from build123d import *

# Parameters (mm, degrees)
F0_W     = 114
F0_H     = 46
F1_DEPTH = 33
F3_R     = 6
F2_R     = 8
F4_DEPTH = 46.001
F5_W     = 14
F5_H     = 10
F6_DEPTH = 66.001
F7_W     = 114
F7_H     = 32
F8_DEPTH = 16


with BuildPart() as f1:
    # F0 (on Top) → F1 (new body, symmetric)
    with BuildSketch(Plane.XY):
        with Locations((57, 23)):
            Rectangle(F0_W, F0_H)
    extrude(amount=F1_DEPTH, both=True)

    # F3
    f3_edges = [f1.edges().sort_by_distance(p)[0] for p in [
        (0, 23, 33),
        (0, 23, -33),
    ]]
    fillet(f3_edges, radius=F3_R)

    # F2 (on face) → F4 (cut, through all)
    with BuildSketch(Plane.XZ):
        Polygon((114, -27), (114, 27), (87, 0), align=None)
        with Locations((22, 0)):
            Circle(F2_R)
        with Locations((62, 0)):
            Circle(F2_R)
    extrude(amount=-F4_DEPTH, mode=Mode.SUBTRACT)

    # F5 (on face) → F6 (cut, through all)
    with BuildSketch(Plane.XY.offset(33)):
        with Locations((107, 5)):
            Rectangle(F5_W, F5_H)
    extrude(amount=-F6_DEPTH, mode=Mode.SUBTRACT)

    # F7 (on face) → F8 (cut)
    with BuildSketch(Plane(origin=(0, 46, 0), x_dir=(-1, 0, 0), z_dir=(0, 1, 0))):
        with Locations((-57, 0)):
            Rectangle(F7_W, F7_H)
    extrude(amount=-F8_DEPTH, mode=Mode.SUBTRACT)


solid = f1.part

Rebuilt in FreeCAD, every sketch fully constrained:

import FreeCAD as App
import Part
import Sketcher
from FreeCAD import Vector
Q = App.Units.Quantity


def edges_at(feature, points):
    """Names of the edges that pass closest to the given points."""
    edges = feature.Shape.Edges
    near = lambda p: min(range(len(edges)), key=lambda i: edges[i].distToShape(Part.Vertex(*p))[0])
    return sorted({f"Edge{near(p) + 1}" for p in points})

doc = App.newDocument("Part")
body = doc.addObject("PartDesign::Body", "Body")

sketch1 = body.newObject("Sketcher::SketchObject", "Sketch")
sketch1.AttachmentSupport = (doc.getObject("XY_Plane"), [""])
sketch1.MapMode = "FlatFace"
sketch1.addGeometry(Part.LineSegment(Vector(0, 46, 0), Vector(0, 0, 0)), False)
sketch1.addGeometry(Part.LineSegment(Vector(0, 0, 0), Vector(114, 0, 0)), False)
sketch1.addGeometry(Part.LineSegment(Vector(114, 0, 0), Vector(114, 46, 0)), False)
sketch1.addGeometry(Part.LineSegment(Vector(114, 46, 0), Vector(0, 46, 0)), False)
sketch1.addConstraint(Sketcher.Constraint("Coincident", 0, 2, 1, 1))
sketch1.addConstraint(Sketcher.Constraint("Coincident", 1, 2, 2, 1))
sketch1.addConstraint(Sketcher.Constraint("Coincident", 2, 2, 3, 1))
sketch1.addConstraint(Sketcher.Constraint("Coincident", 3, 2, 0, 1))
sketch1.addConstraint(Sketcher.Constraint("Vertical", 0))
sketch1.addConstraint(Sketcher.Constraint("Horizontal", 1))
sketch1.addConstraint(Sketcher.Constraint("Vertical", 2))
sketch1.addConstraint(Sketcher.Constraint("Horizontal", 3))
sketch1.addConstraint(Sketcher.Constraint("Coincident", 0, 2, -1, 1))
sketch1.addConstraint(Sketcher.Constraint("DistanceX", 1, 1, 1, 2, Q("114 mm")))
sketch1.addConstraint(Sketcher.Constraint("DistanceY", 0, 2, 0, 1, Q("46 mm")))
pad1 = body.newObject("PartDesign::Pad", "Pad")
pad1.Profile = sketch1
pad1.Length = 66
pad1.Midplane = True
doc.recompute()

fillet = body.newObject("PartDesign::Fillet", "Fillet")
fillet.Base = (pad1, edges_at(pad1, [(0, 23, 33), (0, 23, -33)]))
fillet.Radius = 6

sketch2 = body.newObject("Sketcher::SketchObject", "Sketch001")
sketch2.AttachmentSupport = (doc.getObject("XZ_Plane"), [""])
sketch2.MapMode = "FlatFace"
sketch2.addGeometry(Part.LineSegment(Vector(114, -27, 0), Vector(114, 27, 0)), False)
sketch2.addGeometry(Part.LineSegment(Vector(114, 27, 0), Vector(87, 0, 0)), False)
sketch2.addGeometry(Part.LineSegment(Vector(87, 0, 0), Vector(114, -27, 0)), False)
sketch2.addGeometry(Part.Circle(Vector(22, 0, 0), Vector(0, 0, 1), 8), False)
sketch2.addGeometry(Part.Circle(Vector(62, 0, 0), Vector(0, 0, 1), 8), False)
sketch2.addConstraint(Sketcher.Constraint("Coincident", 0, 2, 1, 1))
sketch2.addConstraint(Sketcher.Constraint("Coincident", 1, 2, 2, 1))
sketch2.addConstraint(Sketcher.Constraint("Coincident", 2, 2, 0, 1))
sketch2.addConstraint(Sketcher.Constraint("Vertical", 0))
sketch2.addConstraint(Sketcher.Constraint("Equal", 3, 4))
sketch2.addConstraint(Sketcher.Constraint("PointOnObject", 3, 3, -1))
sketch2.addConstraint(Sketcher.Constraint("PointOnObject", 4, 3, -1))
sketch2.addConstraint(Sketcher.Constraint("PointOnObject", 1, 2, -1))
sketch2.addConstraint(Sketcher.Constraint("Perpendicular", 1, 2))
sketch2.addConstraint(Sketcher.Constraint("Equal", 1, 2))
sketch2.addConstraint(Sketcher.Constraint("Diameter", 3, Q("16 mm")))
sketch2.addConstraint(Sketcher.Constraint("DistanceY", 0, 1, 0, 2, Q("54 mm")))
sketch2.addConstraint(Sketcher.Constraint("DistanceX", -1, 1, 3, 3, Q("22 mm")))
sketch2.addConstraint(Sketcher.Constraint("DistanceX", -1, 1, 4, 3, Q("62 mm")))
sketch2.addConstraint(Sketcher.Constraint("DistanceX", -1, 1, 0, 2, Q("114 mm")))
pocket1 = body.newObject("PartDesign::Pocket", "Pocket")
pocket1.Profile = sketch2
pocket1.Type = "ThroughAll"

sketch3 = body.newObject("Sketcher::SketchObject", "Sketch002")
sketch3.AttachmentSupport = (doc.getObject("XY_Plane"), [""])
sketch3.MapMode = "FlatFace"
sketch3.AttachmentOffset = App.Placement(Vector(0, 0, 33), App.Rotation())
sketch3.addGeometry(Part.LineSegment(Vector(100, 10, 0), Vector(100, 0, 0)), False)
sketch3.addGeometry(Part.LineSegment(Vector(100, 0, 0), Vector(114, 0, 0)), False)
sketch3.addGeometry(Part.LineSegment(Vector(114, 0, 0), Vector(114, 10, 0)), False)
sketch3.addGeometry(Part.LineSegment(Vector(114, 10, 0), Vector(100, 10, 0)), False)
sketch3.addConstraint(Sketcher.Constraint("Coincident", 0, 2, 1, 1))
sketch3.addConstraint(Sketcher.Constraint("Coincident", 1, 2, 2, 1))
sketch3.addConstraint(Sketcher.Constraint("Coincident", 2, 2, 3, 1))
sketch3.addConstraint(Sketcher.Constraint("Coincident", 3, 2, 0, 1))
sketch3.addConstraint(Sketcher.Constraint("Vertical", 0))
sketch3.addConstraint(Sketcher.Constraint("Horizontal", 1))
sketch3.addConstraint(Sketcher.Constraint("Vertical", 2))
sketch3.addConstraint(Sketcher.Constraint("Horizontal", 3))
sketch3.addConstraint(Sketcher.Constraint("PointOnObject", 0, 2, -1))
sketch3.addConstraint(Sketcher.Constraint("DistanceX", 1, 1, 1, 2, Q("14 mm")))
sketch3.addConstraint(Sketcher.Constraint("DistanceY", 0, 2, 0, 1, Q("10 mm")))
sketch3.addConstraint(Sketcher.Constraint("DistanceX", -1, 1, 0, 2, Q("100 mm")))
pocket2 = body.newObject("PartDesign::Pocket", "Pocket001")
pocket2.Profile = sketch3
pocket2.Type = "ThroughAll"

sketch4 = body.newObject("Sketcher::SketchObject", "Sketch003")
sketch4.AttachmentSupport = (doc.getObject("XZ_Plane"), [""])
sketch4.MapMode = "FlatFace"
sketch4.AttachmentOffset = App.Placement(Vector(0, 0, -46), App.Rotation())
sketch4.addGeometry(Part.LineSegment(Vector(114, 16, 0), Vector(114, -16, 0)), False)
sketch4.addGeometry(Part.LineSegment(Vector(114, -16, 0), Vector(0, -16, 0)), False)
sketch4.addGeometry(Part.LineSegment(Vector(0, -16, 0), Vector(0, 16, 0)), False)
sketch4.addGeometry(Part.LineSegment(Vector(0, 16, 0), Vector(114, 16, 0)), False)
sketch4.addConstraint(Sketcher.Constraint("Coincident", 0, 2, 1, 1))
sketch4.addConstraint(Sketcher.Constraint("Coincident", 1, 2, 2, 1))
sketch4.addConstraint(Sketcher.Constraint("Coincident", 2, 2, 3, 1))
sketch4.addConstraint(Sketcher.Constraint("Coincident", 3, 2, 0, 1))
sketch4.addConstraint(Sketcher.Constraint("Vertical", 0))
sketch4.addConstraint(Sketcher.Constraint("Horizontal", 1))
sketch4.addConstraint(Sketcher.Constraint("Vertical", 2))
sketch4.addConstraint(Sketcher.Constraint("Horizontal", 3))
sketch4.addConstraint(Sketcher.Constraint("Symmetric", 1, 2, 2, 2, -1, 1))
sketch4.addConstraint(Sketcher.Constraint("DistanceX", 1, 2, 1, 1, Q("114 mm")))
sketch4.addConstraint(Sketcher.Constraint("DistanceY", 0, 2, 0, 1, Q("32 mm")))
pocket3 = body.newObject("PartDesign::Pocket", "Pocket002")
pocket3.Profile = sketch4
pocket3.Length = 16
pocket3.Reversed = True

doc.recompute()
